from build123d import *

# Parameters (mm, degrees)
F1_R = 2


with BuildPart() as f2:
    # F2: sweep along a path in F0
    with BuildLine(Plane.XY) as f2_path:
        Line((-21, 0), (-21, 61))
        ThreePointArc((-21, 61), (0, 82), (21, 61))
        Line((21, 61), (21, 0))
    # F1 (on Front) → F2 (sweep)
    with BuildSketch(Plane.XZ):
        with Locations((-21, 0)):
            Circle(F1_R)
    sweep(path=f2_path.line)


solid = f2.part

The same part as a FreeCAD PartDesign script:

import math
import FreeCAD as App
import Part
import Sketcher

V = App.Vector

doc = App.newDocument("Part")
body = doc.addObject("PartDesign::Body", "Body")

sketch1 = body.newObject("Sketcher::SketchObject", "Sketch")
sketch1.AttachmentSupport = (doc.getObject("XZ_Plane"), [""])
sketch1.MapMode = "FlatFace"
sketch1.addGeometry(Part.Circle(V(-21, 0, 0), V(0, 0, 1), 2), False)
sketch1.addConstraint([
    Sketcher.Constraint("PointOnObject", 0, 3, -1),
    Sketcher.Constraint("Diameter", 0, 4.0),
    Sketcher.Constraint("DistanceX", 0, 3, -1, 1, 21.0),
])

sketch2 = body.newObject("Sketcher::SketchObject", "Sketch001")
sketch2.AttachmentSupport = (doc.getObject("XY_Plane"), [""])
sketch2.MapMode = "FlatFace"
sketch2.addGeometry([
    Part.LineSegment(V(-21, 0, 0), V(-21, 61, 0)),
    Part.ArcOfCircle(Part.Circle(V(0, 61, 0), V(0, 0, 1), 21), math.radians(0), math.radians(180)),
    Part.LineSegment(V(21, 61, 0), V(21, 0, 0)),
], False)
sketch2.addConstraint([
    Sketcher.Constraint("Tangent", 0, 2, 1, 2),
    Sketcher.Constraint("Tangent", 1, 1, 2, 1),
    Sketcher.Constraint("Vertical", 0),
    Sketcher.Constraint("Vertical", 2),
    Sketcher.Constraint("Symmetric", 0, 1, 2, 2, -1, 1),
    Sketcher.Constraint("PointOnObject", 0, 1, -1),
    Sketcher.Constraint("Radius", 1, 21.0),
    Sketcher.Constraint("DistanceY", 0, 1, 0, 2, 61.0),
])
doc.recompute()

additivepipe = body.newObject("PartDesign::AdditivePipe", "AdditivePipe")
additivepipe.Profile = sketch1
additivepipe.Spine = (sketch2, ["Edge1", "Edge2", "Edge3"])

doc.recompute()
